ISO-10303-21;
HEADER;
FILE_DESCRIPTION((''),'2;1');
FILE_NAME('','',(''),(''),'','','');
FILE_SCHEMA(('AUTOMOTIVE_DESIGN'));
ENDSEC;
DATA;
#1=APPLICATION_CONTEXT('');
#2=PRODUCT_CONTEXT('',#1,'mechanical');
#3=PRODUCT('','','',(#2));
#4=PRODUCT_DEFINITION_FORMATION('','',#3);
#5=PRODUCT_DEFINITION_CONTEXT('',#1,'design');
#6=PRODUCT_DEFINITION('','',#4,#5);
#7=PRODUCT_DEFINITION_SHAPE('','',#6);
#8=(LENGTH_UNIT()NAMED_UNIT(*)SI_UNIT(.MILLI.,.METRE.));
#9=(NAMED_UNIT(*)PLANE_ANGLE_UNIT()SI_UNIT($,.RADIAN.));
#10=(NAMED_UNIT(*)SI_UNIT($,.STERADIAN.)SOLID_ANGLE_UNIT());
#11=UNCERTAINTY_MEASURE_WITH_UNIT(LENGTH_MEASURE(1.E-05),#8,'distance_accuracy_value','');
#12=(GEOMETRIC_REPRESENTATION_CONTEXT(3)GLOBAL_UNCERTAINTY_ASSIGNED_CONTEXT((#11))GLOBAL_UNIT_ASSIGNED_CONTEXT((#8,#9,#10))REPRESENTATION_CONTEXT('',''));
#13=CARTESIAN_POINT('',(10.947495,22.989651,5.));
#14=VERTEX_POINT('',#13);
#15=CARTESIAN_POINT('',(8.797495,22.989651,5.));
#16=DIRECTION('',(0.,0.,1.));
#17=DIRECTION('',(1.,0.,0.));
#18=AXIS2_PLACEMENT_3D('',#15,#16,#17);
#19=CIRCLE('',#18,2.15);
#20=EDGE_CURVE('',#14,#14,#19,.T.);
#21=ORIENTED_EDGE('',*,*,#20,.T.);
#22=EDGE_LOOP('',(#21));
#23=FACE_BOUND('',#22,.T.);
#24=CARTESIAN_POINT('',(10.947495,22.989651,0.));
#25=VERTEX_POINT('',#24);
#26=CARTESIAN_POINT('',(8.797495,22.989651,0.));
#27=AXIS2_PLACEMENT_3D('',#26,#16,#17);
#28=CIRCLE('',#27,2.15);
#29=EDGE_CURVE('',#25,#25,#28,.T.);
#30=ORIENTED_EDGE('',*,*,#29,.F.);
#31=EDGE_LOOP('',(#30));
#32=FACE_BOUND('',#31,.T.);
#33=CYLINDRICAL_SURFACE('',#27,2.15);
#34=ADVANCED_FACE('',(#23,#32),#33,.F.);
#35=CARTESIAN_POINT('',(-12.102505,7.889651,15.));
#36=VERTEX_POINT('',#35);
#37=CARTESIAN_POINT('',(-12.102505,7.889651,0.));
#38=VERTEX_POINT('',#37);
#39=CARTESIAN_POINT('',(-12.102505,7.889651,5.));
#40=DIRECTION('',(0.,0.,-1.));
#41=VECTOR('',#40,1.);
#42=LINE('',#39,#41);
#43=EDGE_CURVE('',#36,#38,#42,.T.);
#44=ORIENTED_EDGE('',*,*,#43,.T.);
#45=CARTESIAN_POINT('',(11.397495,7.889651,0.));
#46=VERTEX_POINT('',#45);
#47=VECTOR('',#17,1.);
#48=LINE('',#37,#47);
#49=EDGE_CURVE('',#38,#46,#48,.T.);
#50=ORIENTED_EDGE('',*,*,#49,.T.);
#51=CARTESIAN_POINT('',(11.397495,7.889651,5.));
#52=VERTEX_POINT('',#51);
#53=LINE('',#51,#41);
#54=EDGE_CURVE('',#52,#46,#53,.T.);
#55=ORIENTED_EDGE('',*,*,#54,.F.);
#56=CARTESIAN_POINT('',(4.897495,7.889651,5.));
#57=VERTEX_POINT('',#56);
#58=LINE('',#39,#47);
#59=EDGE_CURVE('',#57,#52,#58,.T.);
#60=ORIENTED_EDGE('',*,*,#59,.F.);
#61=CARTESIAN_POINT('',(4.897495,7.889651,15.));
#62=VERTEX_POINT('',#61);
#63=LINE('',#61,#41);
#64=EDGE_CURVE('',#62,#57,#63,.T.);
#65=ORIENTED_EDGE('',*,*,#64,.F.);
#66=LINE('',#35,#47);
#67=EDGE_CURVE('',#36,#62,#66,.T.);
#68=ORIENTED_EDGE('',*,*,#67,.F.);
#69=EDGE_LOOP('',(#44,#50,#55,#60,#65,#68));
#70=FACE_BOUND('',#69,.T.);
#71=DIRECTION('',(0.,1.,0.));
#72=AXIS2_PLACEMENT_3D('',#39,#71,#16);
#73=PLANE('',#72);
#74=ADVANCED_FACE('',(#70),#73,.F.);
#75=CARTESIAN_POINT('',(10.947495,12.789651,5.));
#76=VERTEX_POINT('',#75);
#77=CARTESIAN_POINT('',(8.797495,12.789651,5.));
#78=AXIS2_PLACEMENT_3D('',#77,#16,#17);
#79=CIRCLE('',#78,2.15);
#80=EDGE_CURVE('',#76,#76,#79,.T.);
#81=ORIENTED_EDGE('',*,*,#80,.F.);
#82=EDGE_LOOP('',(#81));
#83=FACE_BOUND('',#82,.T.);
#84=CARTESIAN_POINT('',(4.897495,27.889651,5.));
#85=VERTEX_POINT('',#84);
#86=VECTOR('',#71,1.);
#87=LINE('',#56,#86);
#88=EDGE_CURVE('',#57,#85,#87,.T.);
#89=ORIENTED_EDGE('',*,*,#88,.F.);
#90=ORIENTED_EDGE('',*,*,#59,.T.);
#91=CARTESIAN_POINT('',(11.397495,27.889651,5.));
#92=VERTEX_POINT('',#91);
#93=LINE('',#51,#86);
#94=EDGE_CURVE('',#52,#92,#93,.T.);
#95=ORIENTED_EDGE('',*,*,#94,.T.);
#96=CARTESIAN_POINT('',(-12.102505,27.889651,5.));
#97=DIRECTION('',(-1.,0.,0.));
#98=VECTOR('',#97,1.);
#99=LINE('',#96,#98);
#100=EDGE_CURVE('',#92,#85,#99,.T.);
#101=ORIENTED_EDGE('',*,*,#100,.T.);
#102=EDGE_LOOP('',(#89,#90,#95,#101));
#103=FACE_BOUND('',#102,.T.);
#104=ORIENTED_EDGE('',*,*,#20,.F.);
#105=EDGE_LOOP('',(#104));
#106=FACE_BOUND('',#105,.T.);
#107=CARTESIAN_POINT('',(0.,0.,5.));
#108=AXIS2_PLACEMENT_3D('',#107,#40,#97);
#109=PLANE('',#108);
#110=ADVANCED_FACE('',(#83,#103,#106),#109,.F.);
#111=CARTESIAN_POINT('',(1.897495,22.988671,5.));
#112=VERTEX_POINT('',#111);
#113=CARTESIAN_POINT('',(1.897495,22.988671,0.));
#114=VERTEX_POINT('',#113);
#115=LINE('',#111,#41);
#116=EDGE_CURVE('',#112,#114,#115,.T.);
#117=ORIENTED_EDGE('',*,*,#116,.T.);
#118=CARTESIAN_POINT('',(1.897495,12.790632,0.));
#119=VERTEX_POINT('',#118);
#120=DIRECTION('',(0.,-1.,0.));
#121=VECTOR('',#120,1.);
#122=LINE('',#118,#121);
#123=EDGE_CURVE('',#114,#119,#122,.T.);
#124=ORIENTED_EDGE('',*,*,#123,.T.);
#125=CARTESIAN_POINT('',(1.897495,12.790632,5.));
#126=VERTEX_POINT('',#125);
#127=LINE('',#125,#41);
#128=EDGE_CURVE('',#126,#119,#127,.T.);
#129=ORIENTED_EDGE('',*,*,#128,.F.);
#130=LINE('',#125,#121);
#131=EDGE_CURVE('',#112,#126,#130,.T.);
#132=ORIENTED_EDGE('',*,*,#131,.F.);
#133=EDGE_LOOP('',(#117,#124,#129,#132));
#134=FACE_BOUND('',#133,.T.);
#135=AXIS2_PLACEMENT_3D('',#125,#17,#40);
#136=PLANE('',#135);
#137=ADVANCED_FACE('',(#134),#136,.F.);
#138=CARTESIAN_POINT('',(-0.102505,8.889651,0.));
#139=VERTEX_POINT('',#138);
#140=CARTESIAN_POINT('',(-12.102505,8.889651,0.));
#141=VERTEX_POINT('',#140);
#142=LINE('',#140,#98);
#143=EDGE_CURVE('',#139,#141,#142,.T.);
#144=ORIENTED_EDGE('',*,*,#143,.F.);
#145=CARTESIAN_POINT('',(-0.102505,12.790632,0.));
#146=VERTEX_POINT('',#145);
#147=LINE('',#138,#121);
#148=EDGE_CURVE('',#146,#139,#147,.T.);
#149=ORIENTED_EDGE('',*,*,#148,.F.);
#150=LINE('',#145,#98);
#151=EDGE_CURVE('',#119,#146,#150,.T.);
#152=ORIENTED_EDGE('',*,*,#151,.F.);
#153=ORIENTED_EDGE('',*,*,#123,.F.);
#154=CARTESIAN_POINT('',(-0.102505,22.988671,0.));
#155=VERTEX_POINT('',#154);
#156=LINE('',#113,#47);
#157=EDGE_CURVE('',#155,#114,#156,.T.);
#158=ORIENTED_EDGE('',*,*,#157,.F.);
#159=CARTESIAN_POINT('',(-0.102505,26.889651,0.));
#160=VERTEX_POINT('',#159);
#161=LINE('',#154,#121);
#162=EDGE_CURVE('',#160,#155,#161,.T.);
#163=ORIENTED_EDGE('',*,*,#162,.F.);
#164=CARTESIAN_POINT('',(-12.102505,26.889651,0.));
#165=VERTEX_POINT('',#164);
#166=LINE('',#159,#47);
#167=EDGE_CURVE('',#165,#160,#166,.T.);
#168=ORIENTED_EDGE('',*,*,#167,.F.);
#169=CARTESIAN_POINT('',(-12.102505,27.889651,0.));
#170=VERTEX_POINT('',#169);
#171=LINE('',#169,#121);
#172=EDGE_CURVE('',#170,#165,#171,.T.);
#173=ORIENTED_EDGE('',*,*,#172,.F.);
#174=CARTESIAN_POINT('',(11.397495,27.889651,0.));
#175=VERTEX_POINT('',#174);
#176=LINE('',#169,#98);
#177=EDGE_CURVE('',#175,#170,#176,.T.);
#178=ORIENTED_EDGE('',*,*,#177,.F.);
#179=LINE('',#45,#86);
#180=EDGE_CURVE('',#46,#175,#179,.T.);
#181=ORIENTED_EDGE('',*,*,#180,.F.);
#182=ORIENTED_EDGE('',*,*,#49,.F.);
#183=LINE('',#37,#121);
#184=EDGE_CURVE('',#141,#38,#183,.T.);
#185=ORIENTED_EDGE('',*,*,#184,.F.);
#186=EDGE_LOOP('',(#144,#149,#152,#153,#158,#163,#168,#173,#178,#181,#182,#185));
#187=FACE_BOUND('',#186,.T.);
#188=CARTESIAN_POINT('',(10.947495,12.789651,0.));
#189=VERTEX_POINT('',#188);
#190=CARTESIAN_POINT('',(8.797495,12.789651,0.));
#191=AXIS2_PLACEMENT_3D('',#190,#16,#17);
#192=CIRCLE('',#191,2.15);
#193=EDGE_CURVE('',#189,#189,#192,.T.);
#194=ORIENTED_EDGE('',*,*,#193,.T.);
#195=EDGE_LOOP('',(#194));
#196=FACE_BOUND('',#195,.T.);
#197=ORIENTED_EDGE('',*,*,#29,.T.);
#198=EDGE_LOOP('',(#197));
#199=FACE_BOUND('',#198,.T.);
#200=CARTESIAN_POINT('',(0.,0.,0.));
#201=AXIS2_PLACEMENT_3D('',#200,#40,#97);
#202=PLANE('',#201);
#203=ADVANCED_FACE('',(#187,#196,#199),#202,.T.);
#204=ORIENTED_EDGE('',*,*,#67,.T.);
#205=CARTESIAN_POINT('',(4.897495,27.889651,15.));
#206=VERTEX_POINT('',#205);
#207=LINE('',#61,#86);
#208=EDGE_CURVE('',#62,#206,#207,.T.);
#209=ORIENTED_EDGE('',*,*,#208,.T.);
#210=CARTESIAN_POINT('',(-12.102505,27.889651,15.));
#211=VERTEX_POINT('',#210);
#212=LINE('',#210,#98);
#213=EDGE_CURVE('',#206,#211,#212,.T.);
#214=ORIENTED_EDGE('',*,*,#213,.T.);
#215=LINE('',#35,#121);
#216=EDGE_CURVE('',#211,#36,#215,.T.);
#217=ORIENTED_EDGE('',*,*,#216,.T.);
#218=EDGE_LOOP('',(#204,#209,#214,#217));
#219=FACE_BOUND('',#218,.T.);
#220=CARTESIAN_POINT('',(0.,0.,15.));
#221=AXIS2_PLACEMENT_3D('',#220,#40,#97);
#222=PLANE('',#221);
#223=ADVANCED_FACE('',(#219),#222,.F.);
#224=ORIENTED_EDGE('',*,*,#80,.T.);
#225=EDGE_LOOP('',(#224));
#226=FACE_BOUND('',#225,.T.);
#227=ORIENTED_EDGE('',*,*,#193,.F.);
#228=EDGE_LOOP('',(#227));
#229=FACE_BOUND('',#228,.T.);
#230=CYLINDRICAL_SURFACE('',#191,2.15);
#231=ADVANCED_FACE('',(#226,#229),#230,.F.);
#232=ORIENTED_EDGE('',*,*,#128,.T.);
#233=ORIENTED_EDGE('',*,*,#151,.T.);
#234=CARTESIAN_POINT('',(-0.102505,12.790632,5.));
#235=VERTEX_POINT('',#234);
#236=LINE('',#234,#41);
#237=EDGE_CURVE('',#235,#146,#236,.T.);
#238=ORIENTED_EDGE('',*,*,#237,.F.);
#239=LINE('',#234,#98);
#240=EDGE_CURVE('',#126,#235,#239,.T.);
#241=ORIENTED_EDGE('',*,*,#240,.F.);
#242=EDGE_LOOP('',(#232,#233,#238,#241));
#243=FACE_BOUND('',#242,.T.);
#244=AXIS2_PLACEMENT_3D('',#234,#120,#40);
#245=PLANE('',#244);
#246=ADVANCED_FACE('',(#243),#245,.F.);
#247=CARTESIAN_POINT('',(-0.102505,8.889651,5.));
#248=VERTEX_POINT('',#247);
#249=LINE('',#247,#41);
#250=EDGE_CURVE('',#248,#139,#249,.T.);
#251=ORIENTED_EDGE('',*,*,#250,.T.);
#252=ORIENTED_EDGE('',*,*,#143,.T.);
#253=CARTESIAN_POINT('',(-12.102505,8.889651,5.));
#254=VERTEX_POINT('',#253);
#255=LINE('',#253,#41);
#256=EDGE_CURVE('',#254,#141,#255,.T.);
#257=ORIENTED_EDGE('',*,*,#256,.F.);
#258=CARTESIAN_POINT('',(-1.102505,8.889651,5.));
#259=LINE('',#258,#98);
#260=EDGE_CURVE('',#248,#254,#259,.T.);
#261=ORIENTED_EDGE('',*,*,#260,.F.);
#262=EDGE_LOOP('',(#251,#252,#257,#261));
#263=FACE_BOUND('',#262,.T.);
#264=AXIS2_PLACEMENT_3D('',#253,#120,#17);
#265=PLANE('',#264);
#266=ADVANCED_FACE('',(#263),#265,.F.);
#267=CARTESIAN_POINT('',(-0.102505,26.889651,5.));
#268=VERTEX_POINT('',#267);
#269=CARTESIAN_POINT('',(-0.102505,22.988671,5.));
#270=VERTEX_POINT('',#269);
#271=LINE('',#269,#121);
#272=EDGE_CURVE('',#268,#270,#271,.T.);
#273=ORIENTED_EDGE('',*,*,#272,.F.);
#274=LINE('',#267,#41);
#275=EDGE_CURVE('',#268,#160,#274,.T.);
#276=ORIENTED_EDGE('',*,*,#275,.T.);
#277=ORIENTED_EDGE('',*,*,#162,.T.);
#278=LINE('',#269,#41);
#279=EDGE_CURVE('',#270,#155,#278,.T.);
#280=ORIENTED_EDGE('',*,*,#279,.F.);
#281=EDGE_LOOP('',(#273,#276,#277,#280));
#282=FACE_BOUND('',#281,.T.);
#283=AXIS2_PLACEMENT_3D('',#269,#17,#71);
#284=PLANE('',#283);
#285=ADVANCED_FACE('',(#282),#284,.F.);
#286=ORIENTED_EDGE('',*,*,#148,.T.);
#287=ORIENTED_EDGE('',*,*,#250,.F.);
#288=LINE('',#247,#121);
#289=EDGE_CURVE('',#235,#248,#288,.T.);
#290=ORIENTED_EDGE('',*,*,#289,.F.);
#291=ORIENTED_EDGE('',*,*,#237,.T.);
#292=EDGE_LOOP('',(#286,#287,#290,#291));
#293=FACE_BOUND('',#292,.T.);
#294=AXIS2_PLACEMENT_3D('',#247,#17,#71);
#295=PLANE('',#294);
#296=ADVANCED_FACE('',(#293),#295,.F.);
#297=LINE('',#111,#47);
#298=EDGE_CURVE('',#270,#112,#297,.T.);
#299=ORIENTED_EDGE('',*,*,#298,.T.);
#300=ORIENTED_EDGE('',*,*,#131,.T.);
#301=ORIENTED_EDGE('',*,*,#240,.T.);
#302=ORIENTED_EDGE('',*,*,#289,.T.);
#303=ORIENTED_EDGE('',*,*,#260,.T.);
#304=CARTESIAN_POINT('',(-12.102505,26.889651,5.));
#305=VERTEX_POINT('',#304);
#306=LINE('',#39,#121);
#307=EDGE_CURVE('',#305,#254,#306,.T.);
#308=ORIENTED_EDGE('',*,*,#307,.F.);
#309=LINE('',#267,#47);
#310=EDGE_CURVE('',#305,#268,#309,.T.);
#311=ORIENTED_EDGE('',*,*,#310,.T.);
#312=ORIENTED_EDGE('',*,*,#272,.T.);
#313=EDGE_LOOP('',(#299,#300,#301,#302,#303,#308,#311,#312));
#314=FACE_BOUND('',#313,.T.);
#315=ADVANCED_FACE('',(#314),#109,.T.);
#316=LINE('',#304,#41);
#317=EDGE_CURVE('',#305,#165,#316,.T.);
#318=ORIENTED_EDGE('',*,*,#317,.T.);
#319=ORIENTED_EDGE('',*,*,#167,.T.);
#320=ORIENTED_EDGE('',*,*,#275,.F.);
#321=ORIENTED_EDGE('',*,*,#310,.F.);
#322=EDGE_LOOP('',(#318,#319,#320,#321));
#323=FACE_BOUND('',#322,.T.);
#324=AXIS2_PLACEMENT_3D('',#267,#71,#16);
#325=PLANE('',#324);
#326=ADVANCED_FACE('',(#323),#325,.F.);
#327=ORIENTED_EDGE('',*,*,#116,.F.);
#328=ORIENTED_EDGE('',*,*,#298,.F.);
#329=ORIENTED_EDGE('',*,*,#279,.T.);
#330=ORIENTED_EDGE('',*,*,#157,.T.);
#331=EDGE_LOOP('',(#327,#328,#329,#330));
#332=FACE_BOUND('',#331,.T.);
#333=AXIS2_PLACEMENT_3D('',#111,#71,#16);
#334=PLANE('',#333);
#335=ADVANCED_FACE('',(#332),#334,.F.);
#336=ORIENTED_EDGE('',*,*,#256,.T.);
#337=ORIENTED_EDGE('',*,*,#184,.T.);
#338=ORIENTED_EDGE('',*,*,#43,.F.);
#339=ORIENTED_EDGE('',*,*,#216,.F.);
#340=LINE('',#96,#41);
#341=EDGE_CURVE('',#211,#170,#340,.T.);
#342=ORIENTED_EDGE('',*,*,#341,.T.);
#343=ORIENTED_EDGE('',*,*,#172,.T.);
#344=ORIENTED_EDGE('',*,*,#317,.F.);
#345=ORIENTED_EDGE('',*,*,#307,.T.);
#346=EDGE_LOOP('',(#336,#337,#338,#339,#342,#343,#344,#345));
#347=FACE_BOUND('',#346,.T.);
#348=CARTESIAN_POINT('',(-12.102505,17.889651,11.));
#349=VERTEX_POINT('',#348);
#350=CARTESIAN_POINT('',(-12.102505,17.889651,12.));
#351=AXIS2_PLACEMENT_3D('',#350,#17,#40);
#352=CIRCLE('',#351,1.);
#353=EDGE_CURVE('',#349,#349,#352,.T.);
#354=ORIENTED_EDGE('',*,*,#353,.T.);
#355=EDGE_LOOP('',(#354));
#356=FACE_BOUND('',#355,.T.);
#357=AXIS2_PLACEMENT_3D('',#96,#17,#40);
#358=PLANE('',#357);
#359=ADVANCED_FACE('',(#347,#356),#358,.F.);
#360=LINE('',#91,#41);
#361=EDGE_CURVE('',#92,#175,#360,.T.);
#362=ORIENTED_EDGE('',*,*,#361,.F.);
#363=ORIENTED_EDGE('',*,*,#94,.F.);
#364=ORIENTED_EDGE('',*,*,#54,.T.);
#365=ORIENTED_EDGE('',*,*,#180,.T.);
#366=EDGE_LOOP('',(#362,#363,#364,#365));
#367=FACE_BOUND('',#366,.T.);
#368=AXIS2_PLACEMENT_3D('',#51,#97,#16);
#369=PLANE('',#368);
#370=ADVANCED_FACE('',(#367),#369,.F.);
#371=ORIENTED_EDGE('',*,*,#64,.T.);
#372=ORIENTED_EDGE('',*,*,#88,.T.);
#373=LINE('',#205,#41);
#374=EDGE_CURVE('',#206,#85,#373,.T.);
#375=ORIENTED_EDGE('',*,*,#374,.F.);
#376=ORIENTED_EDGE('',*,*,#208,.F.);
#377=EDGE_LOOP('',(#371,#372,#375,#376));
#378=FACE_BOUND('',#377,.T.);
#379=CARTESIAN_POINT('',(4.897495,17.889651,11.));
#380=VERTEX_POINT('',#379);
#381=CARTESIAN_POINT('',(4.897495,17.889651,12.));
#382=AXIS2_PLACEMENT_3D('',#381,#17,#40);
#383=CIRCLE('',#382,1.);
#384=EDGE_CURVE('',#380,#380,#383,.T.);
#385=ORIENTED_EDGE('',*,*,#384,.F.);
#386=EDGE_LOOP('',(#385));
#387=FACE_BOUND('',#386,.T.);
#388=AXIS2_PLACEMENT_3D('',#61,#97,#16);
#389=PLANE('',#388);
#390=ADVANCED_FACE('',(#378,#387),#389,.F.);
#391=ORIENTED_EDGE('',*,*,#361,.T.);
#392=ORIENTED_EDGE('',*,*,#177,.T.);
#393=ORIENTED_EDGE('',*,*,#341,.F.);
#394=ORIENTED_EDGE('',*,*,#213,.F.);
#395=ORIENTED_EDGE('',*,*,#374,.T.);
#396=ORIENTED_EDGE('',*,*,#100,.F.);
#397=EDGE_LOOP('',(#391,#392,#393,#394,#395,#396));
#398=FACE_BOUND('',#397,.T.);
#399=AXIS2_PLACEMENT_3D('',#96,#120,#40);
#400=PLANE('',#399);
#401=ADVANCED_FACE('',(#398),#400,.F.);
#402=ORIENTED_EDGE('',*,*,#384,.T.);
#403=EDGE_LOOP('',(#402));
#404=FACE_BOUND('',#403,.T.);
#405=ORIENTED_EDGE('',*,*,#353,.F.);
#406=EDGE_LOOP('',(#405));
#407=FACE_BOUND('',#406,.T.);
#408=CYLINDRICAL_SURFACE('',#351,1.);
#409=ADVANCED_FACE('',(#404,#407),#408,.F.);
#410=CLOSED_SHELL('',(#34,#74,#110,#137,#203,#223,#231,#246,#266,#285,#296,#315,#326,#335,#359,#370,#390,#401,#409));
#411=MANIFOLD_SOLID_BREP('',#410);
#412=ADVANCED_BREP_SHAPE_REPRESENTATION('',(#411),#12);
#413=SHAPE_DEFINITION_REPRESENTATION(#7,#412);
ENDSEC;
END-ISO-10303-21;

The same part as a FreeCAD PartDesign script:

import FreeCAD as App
import Part
import Sketcher

V = App.Vector
Q = App.Units.Quantity


def add_polygon(sketch, points):
    """Adds a closed chain of lines whose ends are joined by coincident constraints."""
    first, n = sketch.GeometryCount, len(points)
    for a, b in zip(points, points[1:] + points[:1]):
        sketch.addGeometry(Part.LineSegment(App.Vector(*a, 0), App.Vector(*b, 0)), False)
    for i in range(n):
        sketch.addConstraint(Sketcher.Constraint("Coincident", first + i, 2, first + (i + 1) % n, 1))

doc = App.newDocument("Part")
body = doc.addObject("PartDesign::Body", "Body")

# Sketch on XY plane
sketch1 = doc.addObject("Sketcher::SketchObject", "Sketch")
body.addObject(sketch1)
sketch1.AttachmentSupport = (doc.XY_Plane, [""])
sketch1.MapMode = "FlatFace"
add_polygon(sketch1, [(-12.1, 7.9), (11.4, 7.9), (11.4, 27.9), (-12.1, 27.9), (-12.1, 26.9), (-0.1, 26.9), (-0.1, 23), (1.9, 23), (1.9, 12.8), (-0.1, 12.8), (-0.1, 8.9), (-12.1, 8.9)])  # lines 0-11
sketch1.addConstraint([
    Sketcher.Constraint("Horizontal", 0),
    Sketcher.Constraint("Vertical", 1),
    Sketcher.Constraint("Horizontal", 2),
    Sketcher.Constraint("Vertical", 3),
    Sketcher.Constraint("Horizontal", 4),
    Sketcher.Constraint("Vertical", 5),
    Sketcher.Constraint("Horizontal", 6),
    Sketcher.Constraint("Vertical", 7),
    Sketcher.Constraint("Horizontal", 8),
    Sketcher.Constraint("Vertical", 9),
    Sketcher.Constraint("Horizontal", 10),
    Sketcher.Constraint("Vertical", 11),
    Sketcher.Constraint("Vertical", 5, 2, 8, 2),
    Sketcher.Constraint("Vertical", 3, 2, 10, 2),
    Sketcher.Constraint("Equal", 5, 9),
    Sketcher.Constraint("Equal", 3, 11),
    Sketcher.Constraint("DistanceX", 4, 1, 4, 2, Q("12 mm")),
    Sketcher.Constraint("DistanceX", 6, 1, 6, 2, Q("2 mm")),
    Sketcher.Constraint("DistanceY", 1, 1, 1, 2, Q("20 mm")),
    Sketcher.Constraint("DistanceY", 3, 2, 3, 1, Q("1 mm")),
    Sketcher.Constraint("DistanceX", 0, 1, 0, 2, Q("23.5 mm")),
    Sketcher.Constraint("DistanceY", 5, 2, 5, 1, Q("3.90098 mm")),
    Sketcher.Constraint("DistanceY", -1, 1, 0, 2, Q("7.889651 mm")),
    Sketcher.Constraint("DistanceX", -1, 1, 0, 2, Q("11.397495 mm")),
])
pad1 = doc.addObject("PartDesign::Pad", "Pad")
body.addObject(pad1)
pad1.Profile = sketch1
pad1.Length = 5

# Sketch on XY plane
sketch2 = doc.addObject("Sketcher::SketchObject", "Sketch001")
body.addObject(sketch2)
sketch2.AttachmentSupport = (doc.XY_Plane, [""])
sketch2.MapMode = "FlatFace"
sketch2.AttachmentOffset = App.Placement(V(0, 0, 5), App.Rotation())
add_polygon(sketch2, [(-12, 28), (-12, 8), (5, 8), (5, 28)])  # lines 0-3
sketch2.addConstraint([
    Sketcher.Constraint("Vertical", 0),
    Sketcher.Constraint("Horizontal", 1),
    Sketcher.Constraint("Vertical", 2),
    Sketcher.Constraint("Horizontal", 3),
    Sketcher.Constraint("DistanceX", 1, 1, 1, 2, Q("17 mm")),
    Sketcher.Constraint("DistanceY", 0, 2, 0, 1, Q("20 mm")),
    Sketcher.Constraint("DistanceY", -1, 1, 0, 2, Q("7.889651 mm")),
    Sketcher.Constraint("DistanceX", 0, 2, -1, 1, Q("12.102505 mm")),
])
pad2 = doc.addObject("PartDesign::Pad", "Pad001")
body.addObject(pad2)
pad2.Profile = sketch2
pad2.Length = 10

# Sketch on YZ plane
sketch3 = doc.addObject("Sketcher::SketchObject", "Sketch002")
body.addObject(sketch3)
sketch3.AttachmentSupport = (doc.YZ_Plane, [""])
sketch3.MapMode = "FlatFace"
sketch3.AttachmentOffset = App.Placement(V(0, 0, 4.897495), App.Rotation())
sketch3.addGeometry(Part.Circle(V(17.9, 12, 0), V(0, 0, 1), 1), False)
sketch3.addConstraint([
    Sketcher.Constraint("Diameter", 0, Q("2 mm")),
    Sketcher.Constraint("DistanceY", -1, 1, 0, 3, Q("12 mm")),
    Sketcher.Constraint("DistanceX", -1, 1, 0, 3, Q("17.889651 mm")),
])
pocket1 = doc.addObject("PartDesign::Pocket", "Pocket")
body.addObject(pocket1)
pocket1.Profile = sketch3
pocket1.Type = "ThroughAll"

# Sketch on XY plane
sketch4 = doc.addObject("Sketcher::SketchObject", "Sketch003")
body.addObject(sketch4)
sketch4.AttachmentSupport = (doc.XY_Plane, [""])
sketch4.MapMode = "FlatFace"
sketch4.AttachmentOffset = App.Placement(V(0, 0, 5), App.Rotation())
sketch4.addGeometry([
    Part.Circle(V(8.8, 12.8, 0), V(0, 0, 1), 2.1),
    Part.Circle(V(8.8, 23, 0), V(0, 0, 1), 2.1),
], False)
sketch4.addConstraint([
    Sketcher.Constraint("Equal", 0, 1),
    Sketcher.Constraint("Vertical", 0, 3, 1, 3),
    Sketcher.Constraint("Diameter", 0, Q("4.3 mm")),
    Sketcher.Constraint("DistanceY", 0, 3, 1, 3, Q("10.2 mm")),
    Sketcher.Constraint("DistanceY", -1, 1, 0, 3, Q("12.789651 mm")),
    Sketcher.Constraint("DistanceX", -1, 1, 0, 3, Q("8.797495 mm")),
])
pocket2 = doc.addObject("PartDesign::Pocket", "Pocket001")
body.addObject(pocket2)
pocket2.Profile = sketch4
pocket2.Type = "ThroughAll"

doc.recompute()
